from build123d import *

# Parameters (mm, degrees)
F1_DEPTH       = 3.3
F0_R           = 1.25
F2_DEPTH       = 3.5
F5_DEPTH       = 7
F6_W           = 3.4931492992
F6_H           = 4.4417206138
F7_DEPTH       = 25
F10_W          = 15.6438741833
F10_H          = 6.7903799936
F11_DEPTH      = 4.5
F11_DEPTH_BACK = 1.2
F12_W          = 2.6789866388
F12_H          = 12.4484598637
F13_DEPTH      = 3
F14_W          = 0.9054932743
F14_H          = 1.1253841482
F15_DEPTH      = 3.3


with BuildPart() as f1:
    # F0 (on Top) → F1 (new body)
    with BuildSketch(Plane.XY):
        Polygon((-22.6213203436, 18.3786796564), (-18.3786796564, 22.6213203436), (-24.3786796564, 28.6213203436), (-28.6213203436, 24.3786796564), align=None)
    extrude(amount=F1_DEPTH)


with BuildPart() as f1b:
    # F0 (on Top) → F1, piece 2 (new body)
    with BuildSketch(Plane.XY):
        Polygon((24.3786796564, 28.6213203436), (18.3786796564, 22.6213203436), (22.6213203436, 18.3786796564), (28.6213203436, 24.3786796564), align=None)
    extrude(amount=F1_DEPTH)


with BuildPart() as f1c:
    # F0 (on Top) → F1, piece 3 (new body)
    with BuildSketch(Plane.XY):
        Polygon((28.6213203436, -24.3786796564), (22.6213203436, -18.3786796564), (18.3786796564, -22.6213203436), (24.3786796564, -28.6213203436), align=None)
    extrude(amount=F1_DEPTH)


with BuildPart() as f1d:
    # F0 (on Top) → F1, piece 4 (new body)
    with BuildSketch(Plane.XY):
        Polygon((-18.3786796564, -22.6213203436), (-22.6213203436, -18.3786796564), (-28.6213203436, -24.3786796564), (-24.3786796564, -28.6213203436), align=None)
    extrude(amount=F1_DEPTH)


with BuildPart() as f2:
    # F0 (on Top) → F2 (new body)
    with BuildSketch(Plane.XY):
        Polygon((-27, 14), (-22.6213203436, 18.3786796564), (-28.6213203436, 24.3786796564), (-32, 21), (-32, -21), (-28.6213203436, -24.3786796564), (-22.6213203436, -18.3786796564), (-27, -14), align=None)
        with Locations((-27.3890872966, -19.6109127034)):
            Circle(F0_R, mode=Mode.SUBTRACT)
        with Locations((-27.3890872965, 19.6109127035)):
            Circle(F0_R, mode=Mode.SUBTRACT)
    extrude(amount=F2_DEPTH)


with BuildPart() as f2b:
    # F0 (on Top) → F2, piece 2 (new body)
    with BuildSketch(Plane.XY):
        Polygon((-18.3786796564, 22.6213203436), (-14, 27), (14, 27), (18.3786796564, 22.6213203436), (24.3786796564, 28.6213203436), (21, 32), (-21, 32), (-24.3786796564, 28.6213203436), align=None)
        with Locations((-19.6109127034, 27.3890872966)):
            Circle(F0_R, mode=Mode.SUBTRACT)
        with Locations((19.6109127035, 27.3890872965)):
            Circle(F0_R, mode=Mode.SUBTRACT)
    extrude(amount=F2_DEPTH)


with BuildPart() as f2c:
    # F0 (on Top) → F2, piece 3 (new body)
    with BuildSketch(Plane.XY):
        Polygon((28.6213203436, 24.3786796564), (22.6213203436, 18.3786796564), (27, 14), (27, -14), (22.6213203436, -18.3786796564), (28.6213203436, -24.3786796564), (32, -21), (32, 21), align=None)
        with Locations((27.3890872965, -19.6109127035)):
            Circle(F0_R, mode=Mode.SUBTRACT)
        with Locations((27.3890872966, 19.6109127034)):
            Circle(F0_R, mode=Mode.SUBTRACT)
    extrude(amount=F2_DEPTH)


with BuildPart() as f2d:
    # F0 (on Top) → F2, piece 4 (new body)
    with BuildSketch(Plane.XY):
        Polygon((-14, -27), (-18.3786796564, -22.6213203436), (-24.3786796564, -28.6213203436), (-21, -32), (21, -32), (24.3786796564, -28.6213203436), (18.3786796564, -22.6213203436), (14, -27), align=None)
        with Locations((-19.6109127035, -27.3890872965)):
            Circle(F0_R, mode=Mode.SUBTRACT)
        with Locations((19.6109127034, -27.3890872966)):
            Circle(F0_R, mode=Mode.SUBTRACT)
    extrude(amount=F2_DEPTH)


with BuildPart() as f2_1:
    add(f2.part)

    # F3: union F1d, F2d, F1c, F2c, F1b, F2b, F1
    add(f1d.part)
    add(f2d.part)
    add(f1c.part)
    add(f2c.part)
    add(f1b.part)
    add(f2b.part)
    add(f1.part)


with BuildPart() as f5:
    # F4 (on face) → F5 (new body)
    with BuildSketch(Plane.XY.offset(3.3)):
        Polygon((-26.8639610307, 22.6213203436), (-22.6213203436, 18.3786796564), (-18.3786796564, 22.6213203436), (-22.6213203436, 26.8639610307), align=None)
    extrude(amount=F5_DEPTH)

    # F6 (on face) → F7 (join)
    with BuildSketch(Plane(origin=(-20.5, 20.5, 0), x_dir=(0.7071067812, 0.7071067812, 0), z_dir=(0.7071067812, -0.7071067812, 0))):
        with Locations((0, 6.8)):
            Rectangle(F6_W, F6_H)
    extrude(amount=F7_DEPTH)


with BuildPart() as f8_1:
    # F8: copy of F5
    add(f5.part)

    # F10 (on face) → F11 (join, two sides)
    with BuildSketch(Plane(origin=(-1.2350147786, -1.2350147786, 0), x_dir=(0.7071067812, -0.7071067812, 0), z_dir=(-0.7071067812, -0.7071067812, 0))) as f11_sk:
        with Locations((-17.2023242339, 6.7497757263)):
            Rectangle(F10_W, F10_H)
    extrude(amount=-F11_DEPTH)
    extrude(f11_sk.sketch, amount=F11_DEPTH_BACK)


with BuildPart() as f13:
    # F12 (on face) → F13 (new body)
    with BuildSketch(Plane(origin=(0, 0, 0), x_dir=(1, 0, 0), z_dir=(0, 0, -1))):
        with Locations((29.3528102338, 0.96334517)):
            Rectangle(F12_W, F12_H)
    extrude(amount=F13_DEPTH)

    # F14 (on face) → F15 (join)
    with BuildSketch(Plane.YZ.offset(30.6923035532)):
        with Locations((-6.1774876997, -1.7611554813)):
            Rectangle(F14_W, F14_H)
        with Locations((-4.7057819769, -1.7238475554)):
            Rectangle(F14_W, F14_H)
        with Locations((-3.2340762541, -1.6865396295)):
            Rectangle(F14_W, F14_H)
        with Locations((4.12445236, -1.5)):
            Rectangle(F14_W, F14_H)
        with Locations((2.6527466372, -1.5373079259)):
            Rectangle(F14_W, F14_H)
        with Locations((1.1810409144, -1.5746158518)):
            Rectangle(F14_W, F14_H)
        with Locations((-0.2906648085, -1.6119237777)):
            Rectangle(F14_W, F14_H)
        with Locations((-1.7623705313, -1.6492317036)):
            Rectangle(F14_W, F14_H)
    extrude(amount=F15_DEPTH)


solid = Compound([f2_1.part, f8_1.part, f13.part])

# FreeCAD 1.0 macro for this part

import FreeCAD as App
import Part
import Sketcher

V = App.Vector
Q = App.Units.Quantity

doc = App.newDocument("Part")
body = doc.addObject("PartDesign::Body", "Body")

# Sketch on XY plane
sketch1 = doc.addObject("Sketcher::SketchObject", "Sketch")
body.addObject(sketch1)
sketch1.AttachmentSupport = (doc.XY_Plane, [""])
sketch1.MapMode = "FlatFace"
sketch1.addGeometry(Part.LineSegment(V(-23, 18, 0), V(-18, 23, 0)), False)
sketch1.addGeometry(Part.LineSegment(V(-18, 23, 0), V(-24, 29, 0)), False)
sketch1.addGeometry(Part.LineSegment(V(-24, 29, 0), V(-29, 24, 0)), False)
sketch1.addGeometry(Part.LineSegment(V(-29, 24, 0), V(-23, 18, 0)), False)
sketch1.addConstraint(Sketcher.Constraint("Coincident", 0, 2, 1, 1))
sketch1.addConstraint(Sketcher.Constraint("Coincident", 1, 2, 2, 1))
sketch1.addConstraint(Sketcher.Constraint("Coincident", 2, 2, 3, 1))
sketch1.addConstraint(Sketcher.Constraint("Coincident", 3, 2, 0, 1))
sketch1.addConstraint(Sketcher.Constraint("Perpendicular", 0, 1))
sketch1.addConstraint(Sketcher.Constraint("Perpendicular", 1, 2))
sketch1.addConstraint(Sketcher.Constraint("Perpendicular", 2, 3))
sketch1.addConstraint(Sketcher.Constraint("Angle", 0, Q("45 deg")))
sketch1.addConstraint(Sketcher.Constraint("Distance", 0, 6.0))
sketch1.addConstraint(Sketcher.Constraint("DistanceX", 1, 2, 0, 2, 6.0))
sketch1.addConstraint(Sketcher.Constraint("DistanceX", 0, 2, -1, 1, 18.37868))
sketch1.addConstraint(Sketcher.Constraint("DistanceY", -1, 1, 0, 2, 22.62132))
pad1 = doc.addObject("PartDesign::Pad", "Pad")
body.addObject(pad1)
pad1.Profile = sketch1
pad1.Length = 3.3
body2 = doc.addObject("PartDesign::Body", "Body001")

# Sketch on XY plane
sketch2 = doc.addObject("Sketcher::SketchObject", "Sketch001")
body2.addObject(sketch2)
sketch2.AttachmentSupport = (doc.getObject("XY_Plane001"), [""])
sketch2.MapMode = "FlatFace"
sketch2.addGeometry(Part.LineSegment(V(24, 29, 0), V(18, 23, 0)), False)
sketch2.addGeometry(Part.LineSegment(V(18, 23, 0), V(23, 18, 0)), False)
sketch2.addGeometry(Part.LineSegment(V(23, 18, 0), V(29, 24, 0)), False)
sketch2.addGeometry(Part.LineSegment(V(29, 24, 0), V(24, 29, 0)), False)
sketch2.addConstraint(Sketcher.Constraint("Coincident", 0, 2, 1, 1))
sketch2.addConstraint(Sketcher.Constraint("Coincident", 1, 2, 2, 1))
sketch2.addConstraint(Sketcher.Constraint("Coincident", 2, 2, 3, 1))
sketch2.addConstraint(Sketcher.Constraint("Coincident", 3, 2, 0, 1))
sketch2.addConstraint(Sketcher.Constraint("Perpendicular", 0, 1))
sketch2.addConstraint(Sketcher.Constraint("Perpendicular", 1, 2))
sketch2.addConstraint(Sketcher.Constraint("Perpendicular", 2, 3))
sketch2.addConstraint(Sketcher.Constraint("Angle", 0, Q("-135 deg")))
sketch2.addConstraint(Sketcher.Constraint("Distance", 1, 6.0))
sketch2.addConstraint(Sketcher.Constraint("DistanceX", 1, 2, 2, 2, 6.0))
sketch2.addConstraint(Sketcher.Constraint("DistanceX", -1, 1, 0, 2, 18.37868))
sketch2.addConstraint(Sketcher.Constraint("DistanceY", -1, 1, 0, 2, 22.62132))
pad2 = doc.addObject("PartDesign::Pad", "Pad001")
body2.addObject(pad2)
pad2.Profile = sketch2
pad2.Length = 3.3
body3 = doc.addObject("PartDesign::Body", "Body002")

# Sketch on XY plane
sketch3 = doc.addObject("Sketcher::SketchObject", "Sketch002")
body3.addObject(sketch3)
sketch3.AttachmentSupport = (doc.getObject("XY_Plane002"), [""])
sketch3.MapMode = "FlatFace"
sketch3.addGeometry(Part.LineSegment(V(29, -24, 0), V(23, -18, 0)), False)
sketch3.addGeometry(Part.LineSegment(V(23, -18, 0), V(18, -23, 0)), False)
sketch3.addGeometry(Part.LineSegment(V(18, -23, 0), V(24, -29, 0)), False)
sketch3.addGeometry(Part.LineSegment(V(24, -29, 0), V(29, -24, 0)), False)
sketch3.addConstraint(Sketcher.Constraint("Coincident", 0, 2, 1, 1))
sketch3.addConstraint(Sketcher.Constraint("Coincident", 1, 2, 2, 1))
sketch3.addConstraint(Sketcher.Constraint("Coincident", 2, 2, 3, 1))
sketch3.addConstraint(Sketcher.Constraint("Coincident", 3, 2, 0, 1))
sketch3.addConstraint(Sketcher.Constraint("Perpendicular", 0, 1))
sketch3.addConstraint(Sketcher.Constraint("Perpendicular", 1, 2))
sketch3.addConstraint(Sketcher.Constraint("Perpendicular", 2, 3))
sketch3.addConstraint(Sketcher.Constraint("Angle", 0, Q("135 deg")))
sketch3.addConstraint(Sketcher.Constraint("Distance", 1, 6.0))
sketch3.addConstraint(Sketcher.Constraint("DistanceX", 1, 2, 2, 2, 6.0))
sketch3.addConstraint(Sketcher.Constraint("DistanceX", -1, 1, 0, 2, 22.62132))
sketch3.addConstraint(Sketcher.Constraint("DistanceY", 0, 2, -1, 1, 18.37868))
pad3 = doc.addObject("PartDesign::Pad", "Pad002")
body3.addObject(pad3)
pad3.Profile = sketch3
pad3.Length = 3.3
body4 = doc.addObject("PartDesign::Body", "Body003")

# Sketch on XY plane
sketch4 = doc.addObject("Sketcher::SketchObject", "Sketch003")
body4.addObject(sketch4)
sketch4.AttachmentSupport = (doc.getObject("XY_Plane003"), [""])
sketch4.MapMode = "FlatFace"
sketch4.addGeometry(Part.LineSegment(V(-18, -23, 0), V(-23, -18, 0)), False)
sketch4.addGeometry(Part.LineSegment(V(-23, -18, 0), V(-29, -24, 0)), False)
sketch4.addGeometry(Part.LineSegment(V(-29, -24, 0), V(-24, -29, 0)), False)
sketch4.addGeometry(Part.LineSegment(V(-24, -29, 0), V(-18, -23, 0)), False)
sketch4.addConstraint(Sketcher.Constraint("Coincident", 0, 2, 1, 1))
sketch4.addConstraint(Sketcher.Constraint("Coincident", 1, 2, 2, 1))
sketch4.addConstraint(Sketcher.Constraint("Coincident", 2, 2, 3, 1))
sketch4.addConstraint(Sketcher.Constraint("Coincident", 3, 2, 0, 1))
sketch4.addConstraint(Sketcher.Constraint("Perpendicular", 0, 1))
sketch4.addConstraint(Sketcher.Constraint("Perpendicular", 1, 2))
sketch4.addConstraint(Sketcher.Constraint("Perpendicular", 2, 3))
sketch4.addConstraint(Sketcher.Constraint("Angle", 0, Q("135 deg")))
sketch4.addConstraint(Sketcher.Constraint("Distance", 0, 6.0))
sketch4.addConstraint(Sketcher.Constraint("DistanceX", 1, 2, 0, 2, 6.0))
sketch4.addConstraint(Sketcher.Constraint("DistanceX", 0, 2, -1, 1, 22.62132))
sketch4.addConstraint(Sketcher.Constraint("DistanceY", 0, 2, -1, 1, 18.37868))
pad4 = doc.addObject("PartDesign::Pad", "Pad003")
body4.addObject(pad4)
pad4.Profile = sketch4
pad4.Length = 3.3
body5 = doc.addObject("PartDesign::Body", "Body004")

# Sketch on XY plane
sketch5 = doc.addObject("Sketcher::SketchObject", "Sketch004")
body5.addObject(sketch5)
sketch5.AttachmentSupport = (doc.getObject("XY_Plane004"), [""])
sketch5.MapMode = "FlatFace"
sketch5.addGeometry(Part.LineSegment(V(-27, 14, 0), V(-22.6, 18.4, 0)), False)
sketch5.addGeometry(Part.LineSegment(V(-22.6, 18.4, 0), V(-28.6, 24.4, 0)), False)
sketch5.addGeometry(Part.LineSegment(V(-28.6, 24.4, 0), V(-32, 21, 0)), False)
sketch5.addGeometry(Part.LineSegment(V(-32, 21, 0), V(-32, -21, 0)), False)
sketch5.addGeometry(Part.LineSegment(V(-32, -21, 0), V(-28.6, -24.4, 0)), False)
sketch5.addGeometry(Part.LineSegment(V(-28.6, -24.4, 0), V(-22.6, -18.4, 0)), False)
sketch5.addGeometry(Part.LineSegment(V(-22.6, -18.4, 0), V(-27, -14, 0)), False)
sketch5.addGeometry(Part.LineSegment(V(-27, -14, 0), V(-27, 14, 0)), False)
sketch5.addGeometry(Part.Circle(V(-27.4, -19.6, 0), V(0, 0, 1), 1.2), False)
sketch5.addGeometry(Part.Circle(V(-27.4, 19.6, 0), V(0, 0, 1), 1.2), False)
sketch5.addConstraint(Sketcher.Constraint("Coincident", 0, 2, 1, 1))
sketch5.addConstraint(Sketcher.Constraint("Coincident", 1, 2, 2, 1))
sketch5.addConstraint(Sketcher.Constraint("Coincident", 2, 2, 3, 1))
sketch5.addConstraint(Sketcher.Constraint("Coincident", 3, 2, 4, 1))
sketch5.addConstraint(Sketcher.Constraint("Coincident", 4, 2, 5, 1))
sketch5.addConstraint(Sketcher.Constraint("Coincident", 5, 2, 6, 1))
sketch5.addConstraint(Sketcher.Constraint("Coincident", 6, 2, 7, 1))
sketch5.addConstraint(Sketcher.Constraint("Coincident", 7, 2, 0, 1))
sketch5.addConstraint(Sketcher.Constraint("Vertical", 3))
sketch5.addConstraint(Sketcher.Constraint("Vertical", 7))
sketch5.addConstraint(Sketcher.Constraint("Equal", 8, 9))
sketch5.addConstraint(Sketcher.Constraint("Symmetric", 8, 3, 9, 3, -1))
sketch5.addConstraint(Sketcher.Constraint("Symmetric", 1, 2, 4, 2, -1))
sketch5.addConstraint(Sketcher.Constraint("Symmetric", 0, 2, 5, 2, -1))
sketch5.addConstraint(Sketcher.Constraint("Perpendicular", 0, 1))
sketch5.addConstraint(Sketcher.Constraint("Perpendicular", 1, 2))
sketch5.addConstraint(Sketcher.Constraint("Perpendicular", 2, 4))
sketch5.addConstraint(Sketcher.Constraint("Perpendicular", 4, 5))
sketch5.addConstraint(Sketcher.Constraint("Perpendicular", 5, 6))
sketch5.addConstraint(Sketcher.Constraint("Diameter", 8, 2.5))
sketch5.addConstraint(Sketcher.Constraint("DistanceY", 3, 2, 3, 1, 42.0))
sketch5.addConstraint(Sketcher.Constraint("DistanceY", 7, 1, 7, 2, 28.0))
sketch5.addConstraint(Sketcher.Constraint("DistanceX", 2, 2, -1, 1, 32.0))
sketch5.addConstraint(Sketcher.Constraint("DistanceX", 6, 2, -1, 1, 27.0))
sketch5.addConstraint(Sketcher.Constraint("Distance", 0, 6.192388))
sketch5.addConstraint(Sketcher.Constraint("DistanceX", 8, 3, -1, 1, 27.389087))
sketch5.addConstraint(Sketcher.Constraint("DistanceY", 8, 3, -1, 1, 19.610913))
pad5 = doc.addObject("PartDesign::Pad", "Pad004")
body5.addObject(pad5)
pad5.Profile = sketch5
pad5.Length = 3.5
body6 = doc.addObject("PartDesign::Body", "Body005")

# Sketch on XY plane
sketch6 = doc.addObject("Sketcher::SketchObject", "Sketch005")
body6.addObject(sketch6)
sketch6.AttachmentSupport = (doc.getObject("XY_Plane005"), [""])
sketch6.MapMode = "FlatFace"
sketch6.addGeometry(Part.LineSegment(V(-18.4, 22.6, 0), V(-14, 27, 0)), False)
sketch6.addGeometry(Part.LineSegment(V(-14, 27, 0), V(14, 27, 0)), False)
sketch6.addGeometry(Part.LineSegment(V(14, 27, 0), V(18.4, 22.6, 0)), False)
sketch6.addGeometry(Part.LineSegment(V(18.4, 22.6, 0), V(24.4, 28.6, 0)), False)
sketch6.addGeometry(Part.LineSegment(V(24.4, 28.6, 0), V(21, 32, 0)), False)
sketch6.addGeometry(Part.LineSegment(V(21, 32, 0), V(-21, 32, 0)), False)
sketch6.addGeometry(Part.LineSegment(V(-21, 32, 0), V(-24.4, 28.6, 0)), False)
sketch6.addGeometry(Part.LineSegment(V(-24.4, 28.6, 0), V(-18.4, 22.6, 0)), False)
sketch6.addGeometry(Part.Circle(V(19.6, 27.4, 0), V(0, 0, 1), 1.2), False)
sketch6.addGeometry(Part.Circle(V(-19.6, 27.4, 0), V(0, 0, 1), 1.2), False)
sketch6.addConstraint(Sketcher.Constraint("Coincident", 0, 2, 1, 1))
sketch6.addConstraint(Sketcher.Constraint("Coincident", 1, 2, 2, 1))
sketch6.addConstraint(Sketcher.Constraint("Coincident", 2, 2, 3, 1))
sketch6.addConstraint(Sketcher.Constraint("Coincident", 3, 2, 4, 1))
sketch6.addConstraint(Sketcher.Constraint("Coincident", 4, 2, 5, 1))
sketch6.addConstraint(Sketcher.Constraint("Coincident", 5, 2, 6, 1))
sketch6.addConstraint(Sketcher.Constraint("Coincident", 6, 2, 7, 1))
sketch6.addConstraint(Sketcher.Constraint("Coincident", 7, 2, 0, 1))
sketch6.addConstraint(Sketcher.Constraint("Horizontal", 1))
sketch6.addConstraint(Sketcher.Constraint("Horizontal", 5))
sketch6.addConstraint(Sketcher.Constraint("Equal", 8, 9))
sketch6.addConstraint(Sketcher.Constraint("Symmetric", 8, 3, 9, 3, -2))
sketch6.addConstraint(Sketcher.Constraint("Symmetric", 3, 2, 6, 2, -2))
sketch6.addConstraint(Sketcher.Constraint("Symmetric", 2, 2, 7, 2, -2))
sketch6.addConstraint(Sketcher.Constraint("Perpendicular", 0, 2))
sketch6.addConstraint(Sketcher.Constraint("Perpendicular", 2, 3))
sketch6.addConstraint(Sketcher.Constraint("Perpendicular", 3, 4))
sketch6.addConstraint(Sketcher.Constraint("Perpendicular", 4, 6))
sketch6.addConstraint(Sketcher.Constraint("Perpendicular", 6, 7))
sketch6.addConstraint(Sketcher.Constraint("Diameter", 8, 2.5))
sketch6.addConstraint(Sketcher.Constraint("DistanceX", 1, 1, 1, 2, 28.0))
sketch6.addConstraint(Sketcher.Constraint("DistanceX", 5, 2, 5, 1, 42.0))
sketch6.addConstraint(Sketcher.Constraint("DistanceY", -1, 1, 0, 2, 27.0))
sketch6.addConstraint(Sketcher.Constraint("DistanceY", -1, 1, 4, 2, 32.0))
sketch6.addConstraint(Sketcher.Constraint("Distance", 0, 6.192388))
sketch6.addConstraint(Sketcher.Constraint("DistanceX", -1, 1, 8, 3, 19.610913))
sketch6.addConstraint(Sketcher.Constraint("DistanceY", -1, 1, 8, 3, 27.389087))
pad6 = doc.addObject("PartDesign::Pad", "Pad005")
body6.addObject(pad6)
pad6.Profile = sketch6
pad6.Length = 3.5
body7 = doc.addObject("PartDesign::Body", "Body006")

# Sketch on XY plane
sketch7 = doc.addObject("Sketcher::SketchObject", "Sketch006")
body7.addObject(sketch7)
sketch7.AttachmentSupport = (doc.getObject("XY_Plane006"), [""])
sketch7.MapMode = "FlatFace"
sketch7.addGeometry(Part.LineSegment(V(28.6, 24.4, 0), V(22.6, 18.4, 0)), False)
sketch7.addGeometry(Part.LineSegment(V(22.6, 18.4, 0), V(27, 14, 0)), False)
sketch7.addGeometry(Part.LineSegment(V(27, 14, 0), V(27, -14, 0)), False)
sketch7.addGeometry(Part.LineSegment(V(27, -14, 0), V(22.6, -18.4, 0)), False)
sketch7.addGeometry(Part.LineSegment(V(22.6, -18.4, 0), V(28.6, -24.4, 0)), False)
sketch7.addGeometry(Part.LineSegment(V(28.6, -24.4, 0), V(32, -21, 0)), False)
sketch7.addGeometry(Part.LineSegment(V(32, -21, 0), V(32, 21, 0)), False)
sketch7.addGeometry(Part.LineSegment(V(32, 21, 0), V(28.6, 24.4, 0)), False)
sketch7.addGeometry(Part.Circle(V(27.4, -19.6, 0), V(0, 0, 1), 1.2), False)
sketch7.addGeometry(Part.Circle(V(27.4, 19.6, 0), V(0, 0, 1), 1.2), False)
sketch7.addConstraint(Sketcher.Constraint("Coincident", 0, 2, 1, 1))
sketch7.addConstraint(Sketcher.Constraint("Coincident", 1, 2, 2, 1))
sketch7.addConstraint(Sketcher.Constraint("Coincident", 2, 2, 3, 1))
sketch7.addConstraint(Sketcher.Constraint("Coincident", 3, 2, 4, 1))
sketch7.addConstraint(Sketcher.Constraint("Coincident", 4, 2, 5, 1))
sketch7.addConstraint(Sketcher.Constraint("Coincident", 5, 2, 6, 1))
sketch7.addConstraint(Sketcher.Constraint("Coincident", 6, 2, 7, 1))
sketch7.addConstraint(Sketcher.Constraint("Coincident", 7, 2, 0, 1))
sketch7.addConstraint(Sketcher.Constraint("Vertical", 2))
sketch7.addConstraint(Sketcher.Constraint("Vertical", 6))
sketch7.addConstraint(Sketcher.Constraint("Equal", 8, 9))
sketch7.addConstraint(Sketcher.Constraint("Symmetric", 8, 3, 9, 3, -1))
sketch7.addConstraint(Sketcher.Constraint("Symmetric", 0, 2, 3, 2, -1))
sketch7.addConstraint(Sketcher.Constraint("Symmetric", 4, 2, 7, 2, -1))
sketch7.addConstraint(Sketcher.Constraint("Perpendicular", 0, 1))
sketch7.addConstraint(Sketcher.Constraint("Perpendicular", 1, 3))
sketch7.addConstraint(Sketcher.Constraint("Perpendicular", 3, 4))
sketch7.addConstraint(Sketcher.Constraint("Perpendicular", 4, 5))
sketch7.addConstraint(Sketcher.Constraint("Perpendicular", 5, 7))
sketch7.addConstraint(Sketcher.Constraint("Diameter", 8, 2.5))
sketch7.addConstraint(Sketcher.Constraint("DistanceY", 2, 2, 2, 1, 28.0))
sketch7.addConstraint(Sketcher.Constraint("DistanceY", 6, 1, 6, 2, 42.0))
sketch7.addConstraint(Sketcher.Constraint("DistanceX", -1, 1, 1, 2, 27.0))
sketch7.addConstraint(Sketcher.Constraint("DistanceX", -1, 1, 5, 2, 32.0))
sketch7.addConstraint(Sketcher.Constraint("Distance", 1, 6.192388))
sketch7.addConstraint(Sketcher.Constraint("DistanceX", -1, 1, 8, 3, 27.389087))
sketch7.addConstraint(Sketcher.Constraint("DistanceY", 8, 3, -1, 1, 19.610913))
pad7 = doc.addObject("PartDesign::Pad", "Pad006")
body7.addObject(pad7)
pad7.Profile = sketch7
pad7.Length = 3.5
body8 = doc.addObject("PartDesign::Body", "Body007")

# Sketch on XY plane
sketch8 = doc.addObject("Sketcher::SketchObject", "Sketch007")
body8.addObject(sketch8)
sketch8.AttachmentSupport = (doc.getObject("XY_Plane007"), [""])
sketch8.MapMode = "FlatFace"
sketch8.addGeometry(Part.LineSegment(V(-14, -27, 0), V(-18.4, -22.6, 0)), False)
sketch8.addGeometry(Part.LineSegment(V(-18.4, -22.6, 0), V(-24.4, -28.6, 0)), False)
sketch8.addGeometry(Part.LineSegment(V(-24.4, -28.6, 0), V(-21, -32, 0)), False)
sketch8.addGeometry(Part.LineSegment(V(-21, -32, 0), V(21, -32, 0)), False)
sketch8.addGeometry(Part.LineSegment(V(21, -32, 0), V(24.4, -28.6, 0)), False)
sketch8.addGeometry(Part.LineSegment(V(24.4, -28.6, 0), V(18.4, -22.6, 0)), False)
sketch8.addGeometry(Part.LineSegment(V(18.4, -22.6, 0), V(14, -27, 0)), False)
sketch8.addGeometry(Part.LineSegment(V(14, -27, 0), V(-14, -27, 0)), False)
sketch8.addGeometry(Part.Circle(V(19.6, -27.4, 0), V(0, 0, 1), 1.2), False)
sketch8.addGeometry(Part.Circle(V(-19.6, -27.4, 0), V(0, 0, 1), 1.2), False)
sketch8.addConstraint(Sketcher.Constraint("Coincident", 0, 2, 1, 1))
sketch8.addConstraint(Sketcher.Constraint("Coincident", 1, 2, 2, 1))
sketch8.addConstraint(Sketcher.Constraint("Coincident", 2, 2, 3, 1))
sketch8.addConstraint(Sketcher.Constraint("Coincident", 3, 2, 4, 1))
sketch8.addConstraint(Sketcher.Constraint("Coincident", 4, 2, 5, 1))
sketch8.addConstraint(Sketcher.Constraint("Coincident", 5, 2, 6, 1))
sketch8.addConstraint(Sketcher.Constraint("Coincident", 6, 2, 7, 1))
sketch8.addConstraint(Sketcher.Constraint("Coincident", 7, 2, 0, 1))
sketch8.addConstraint(Sketcher.Constraint("Horizontal", 3))
sketch8.addConstraint(Sketcher.Constraint("Horizontal", 7))
sketch8.addConstraint(Sketcher.Constraint("Equal", 8, 9))
sketch8.addConstraint(Sketcher.Constraint("Symmetric", 8, 3, 9, 3, -2))
sketch8.addConstraint(Sketcher.Constraint("Symmetric", 1, 2, 4, 2, -2))
sketch8.addConstraint(Sketcher.Constraint("Symmetric", 0, 2, 5, 2, -2))
sketch8.addConstraint(Sketcher.Constraint("Perpendicular", 0, 1))
sketch8.addConstraint(Sketcher.Constraint("Perpendicular", 1, 2))
sketch8.addConstraint(Sketcher.Constraint("Perpendicular", 2, 4))
sketch8.addConstraint(Sketcher.Constraint("Perpendicular", 4, 5))
sketch8.addConstraint(Sketcher.Constraint("Perpendicular", 5, 6))
sketch8.addConstraint(Sketcher.Constraint("Diameter", 8, 2.5))
sketch8.addConstraint(Sketcher.Constraint("DistanceX", 3, 1, 3, 2, 42.0))
sketch8.addConstraint(Sketcher.Constraint("DistanceX", 7, 2, 7, 1, 28.0))
sketch8.addConstraint(Sketcher.Constraint("DistanceY", 2, 2, -1, 1, 32.0))
sketch8.addConstraint(Sketcher.Constraint("DistanceY", 6, 2, -1, 1, 27.0))
sketch8.addConstraint(Sketcher.Constraint("Distance", 0, 6.192388))
sketch8.addConstraint(Sketcher.Constraint("DistanceX", -1, 1, 8, 3, 19.610913))
sketch8.addConstraint(Sketcher.Constraint("DistanceY", 8, 3, -1, 1, 27.389087))
pad8 = doc.addObject("PartDesign::Pad", "Pad007")
body8.addObject(pad8)
pad8.Profile = sketch8
pad8.Length = 3.5
doc.recompute()

boolean = doc.addObject("PartDesign::Boolean", "Boolean")
body5.addObject(boolean)
boolean.Type = "Fuse"
boolean.addObjects([body4])
doc.recompute()

boolean2 = doc.addObject("PartDesign::Boolean", "Boolean001")
body5.addObject(boolean2)
boolean2.Type = "Fuse"
boolean2.addObjects([body8])
doc.recompute()

boolean3 = doc.addObject("PartDesign::Boolean", "Boolean002")
body5.addObject(boolean3)
boolean3.Type = "Fuse"
boolean3.addObjects([body3])
doc.recompute()

boolean4 = doc.addObject("PartDesign::Boolean", "Boolean003")
body5.addObject(boolean4)
boolean4.Type = "Fuse"
boolean4.addObjects([body7])
doc.recompute()

boolean5 = doc.addObject("PartDesign::Boolean", "Boolean004")
body5.addObject(boolean5)
boolean5.Type = "Fuse"
boolean5.addObjects([body2])
doc.recompute()

boolean6 = doc.addObject("PartDesign::Boolean", "Boolean005")
body5.addObject(boolean6)
boolean6.Type = "Fuse"
boolean6.addObjects([body6])
doc.recompute()

boolean7 = doc.addObject("PartDesign::Boolean", "Boolean006")
body5.addObject(boolean7)
boolean7.Type = "Fuse"
boolean7.addObjects([body])
body9 = doc.addObject("PartDesign::Body", "Body008")

# Sketch on XY plane
sketch9 = doc.addObject("Sketcher::SketchObject", "Sketch008")
body9.addObject(sketch9)
sketch9.AttachmentSupport = (doc.getObject("XY_Plane008"), [""])
sketch9.MapMode = "FlatFace"
sketch9.AttachmentOffset = App.Placement(V(0, 0, 3.3), App.Rotation())
sketch9.addGeometry(Part.LineSegment(V(-27, 23, 0), V(-23, 18, 0)), False)
sketch9.addGeometry(Part.LineSegment(V(-23, 18, 0), V(-18, 23, 0)), False)
sketch9.addGeometry(Part.LineSegment(V(-18, 23, 0), V(-23, 27, 0)), False)
sketch9.addGeometry(Part.LineSegment(V(-23, 27, 0), V(-27, 23, 0)), False)
sketch9.addConstraint(Sketcher.Constraint("Coincident", 0, 2, 1, 1))
sketch9.addConstraint(Sketcher.Constraint("Coincident", 1, 2, 2, 1))
sketch9.addConstraint(Sketcher.Constraint("Coincident", 2, 2, 3, 1))
sketch9.addConstraint(Sketcher.Constraint("Coincident", 3, 2, 0, 1))
sketch9.addConstraint(Sketcher.Constraint("Perpendicular", 0, 1))
sketch9.addConstraint(Sketcher.Constraint("Perpendicular", 1, 2))
sketch9.addConstraint(Sketcher.Constraint("Perpendicular", 2, 3))
sketch9.addConstraint(Sketcher.Constraint("Horizontal", 1, 2, 3, 2))
sketch9.addConstraint(Sketcher.Constraint("Vertical", 0, 2, 2, 2))
sketch9.addConstraint(Sketcher.Constraint("Distance", 0, 6.0))
sketch9.addConstraint(Sketcher.Constraint("DistanceX", 0, 2, -1, 1, 22.62132))
sketch9.addConstraint(Sketcher.Constraint("DistanceY", -1, 1, 0, 2, 18.37868))
pad9 = doc.addObject("PartDesign::Pad", "Pad008")
body9.addObject(pad9)
pad9.Profile = sketch9
pad9.Length = 7

# Sketch on an angled plane
sketch10 = doc.addObject("Sketcher::SketchObject", "Sketch009")
body9.addObject(sketch10)
sketch10.Placement = App.Placement(V(-20.5, 20.5, 0), App.Rotation(V(0.707106781, 0.707106781, 0), V(0, 0, 0.999999999), V(0.707106781, -0.707106781, 0), "ZXY"))
sketch10.addGeometry(Part.LineSegment(V(-1.7, 9, 0), V(-1.7, 4.6, 0)), False)
sketch10.addGeometry(Part.LineSegment(V(-1.7, 4.6, 0), V(1.7, 4.6, 0)), False)
sketch10.addGeometry(Part.LineSegment(V(1.7, 4.6, 0), V(1.7, 9, 0)), False)
sketch10.addGeometry(Part.LineSegment(V(1.7, 9, 0), V(-1.7, 9, 0)), False)
sketch10.addConstraint(Sketcher.Constraint("Coincident", 0, 2, 1, 1))
sketch10.addConstraint(Sketcher.Constraint("Coincident", 1, 2, 2, 1))
sketch10.addConstraint(Sketcher.Constraint("Coincident", 2, 2, 3, 1))
sketch10.addConstraint(Sketcher.Constraint("Coincident", 3, 2, 0, 1))
sketch10.addConstraint(Sketcher.Constraint("Vertical", 0))
sketch10.addConstraint(Sketcher.Constraint("Horizontal", 1))
sketch10.addConstraint(Sketcher.Constraint("Vertical", 2))
sketch10.addConstraint(Sketcher.Constraint("Horizontal", 3))
sketch10.addConstraint(Sketcher.Constraint("DistanceX", 1, 1, 1, 2, 3.493149))
sketch10.addConstraint(Sketcher.Constraint("DistanceY", 0, 2, 0, 1, 4.441721))
sketch10.addConstraint(Sketcher.Constraint("DistanceY", -1, 1, 0, 2, 4.57914))
sketch10.addConstraint(Sketcher.Constraint("DistanceX", 0, 2, -1, 1, 1.746575))
pad10 = doc.addObject("PartDesign::Pad", "Pad009")
body9.addObject(pad10)
pad10.Profile = sketch10
pad10.Length = 25

# Sketch on an angled plane
sketch11 = doc.addObject("Sketcher::SketchObject", "Sketch010")
body9.addObject(sketch11)
sketch11.Placement = App.Placement(V(-1.235015, -1.235015, 0), App.Rotation(V(0.707106781, -0.707106781, 0), V(0, 0, 0.999999999), V(-0.707106781, -0.707106781, 0), "ZXY"))
sketch11.addGeometry(Part.LineSegment(V(-25, 10, 0), V(-25, 3, 0)), False)
sketch11.addGeometry(Part.LineSegment(V(-25, 3, 0), V(-9, 3, 0)), False)
sketch11.addGeometry(Part.LineSegment(V(-9, 3, 0), V(-9, 10, 0)), False)
sketch11.addGeometry(Part.LineSegment(V(-9, 10, 0), V(-25, 10, 0)), False)
sketch11.addConstraint(Sketcher.Constraint("Coincident", 0, 2, 1, 1))
sketch11.addConstraint(Sketcher.Constraint("Coincident", 1, 2, 2, 1))
sketch11.addConstraint(Sketcher.Constraint("Coincident", 2, 2, 3, 1))
sketch11.addConstraint(Sketcher.Constraint("Coincident", 3, 2, 0, 1))
sketch11.addConstraint(Sketcher.Constraint("Vertical", 0))
sketch11.addConstraint(Sketcher.Constraint("Horizontal", 1))
sketch11.addConstraint(Sketcher.Constraint("Vertical", 2))
sketch11.addConstraint(Sketcher.Constraint("Horizontal", 3))
sketch11.addConstraint(Sketcher.Constraint("DistanceY", 0, 2, 0, 1, 6.79038))
sketch11.addConstraint(Sketcher.Constraint("DistanceX", 1, 1, 1, 2, 15.643874))
sketch11.addConstraint(Sketcher.Constraint("DistanceX", 0, 2, -1, 1, 25.024261))
sketch11.addConstraint(Sketcher.Constraint("DistanceY", -1, 1, 0, 2, 3.354586))
pad11 = doc.addObject("PartDesign::Pad", "Pad010")
body9.addObject(pad11)
pad11.Profile = sketch11
pad11.Type = "TwoLengths"
pad11.Length = 4.5
pad11.Length2 = 1.2
pad11.Reversed = True
body10 = doc.addObject("PartDesign::Body", "Body009")

# Sketch on XY plane
sketch12 = doc.addObject("Sketcher::SketchObject", "Sketch011")
body10.addObject(sketch12)
sketch12.AttachmentSupport = (doc.getObject("XY_Plane009"), [""])
sketch12.MapMode = "FlatFace"
sketch12.addGeometry(Part.LineSegment(V(28, -7.2, 0), V(28, 5.3, 0)), False)
sketch12.addGeometry(Part.LineSegment(V(28, 5.3, 0), V(30.7, 5.3, 0)), False)
sketch12.addGeometry(Part.LineSegment(V(30.7, 5.3, 0), V(30.7, -7.2, 0)), False)
sketch12.addGeometry(Part.LineSegment(V(30.7, -7.2, 0), V(28, -7.2, 0)), False)
sketch12.addConstraint(Sketcher.Constraint("Coincident", 0, 2, 1, 1))
sketch12.addConstraint(Sketcher.Constraint("Coincident", 1, 2, 2, 1))
sketch12.addConstraint(Sketcher.Constraint("Coincident", 2, 2, 3, 1))
sketch12.addConstraint(Sketcher.Constraint("Coincident", 3, 2, 0, 1))
sketch12.addConstraint(Sketcher.Constraint("Vertical", 0))
sketch12.addConstraint(Sketcher.Constraint("Horizontal", 1))
sketch12.addConstraint(Sketcher.Constraint("Vertical", 2))
sketch12.addConstraint(Sketcher.Constraint("Horizontal", 3))
sketch12.addConstraint(Sketcher.Constraint("DistanceY", 0, 1, 0, 2, 12.44846))
sketch12.addConstraint(Sketcher.Constraint("DistanceX", 1, 1, 1, 2, 2.678987))
sketch12.addConstraint(Sketcher.Constraint("DistanceX", -1, 1, 0, 2, 28.013317))
sketch12.addConstraint(Sketcher.Constraint("DistanceY", -1, 1, 0, 2, 5.260885))
pad12 = doc.addObject("PartDesign::Pad", "Pad011")
body10.addObject(pad12)
pad12.Profile = sketch12
pad12.Length = 3
pad12.Reversed = True

# Sketch on YZ plane
sketch13 = doc.addObject("Sketcher::SketchObject", "Sketch012")
body10.addObject(sketch13)
sketch13.AttachmentSupport = (doc.getObject("YZ_Plane009"), [""])
sketch13.MapMode = "FlatFace"
sketch13.AttachmentOffset = App.Placement(V(0, 0, 30.692304), App.Rotation())
sketch13.addGeometry(Part.LineSegment(V(-6.6, -1.2, 0), V(-6.6, -2.3, 0)), False)
sketch13.addGeometry(Part.LineSegment(V(-6.6, -2.3, 0), V(-5.7, -2.3, 0)), False)
sketch13.addGeometry(Part.LineSegment(V(-5.7, -2.3, 0), V(-5.7, -1.2, 0)), False)
sketch13.addGeometry(Part.LineSegment(V(-5.7, -1.2, 0), V(-6.6, -1.2, 0)), False)
sketch13.addGeometry(Part.LineSegment(V(-5.2, -1.2, 0), V(-5.2, -2.3, 0)), False)
sketch13.addGeometry(Part.LineSegment(V(-5.2, -2.3, 0), V(-4.3, -2.3, 0)), False)
sketch13.addGeometry(Part.LineSegment(V(-4.3, -2.3, 0), V(-4.3, -1.2, 0)), False)
sketch13.addGeometry(Part.LineSegment(V(-4.3, -1.2, 0), V(-5.2, -1.2, 0)), False)
sketch13.addGeometry(Part.LineSegment(V(-3.7, -1.1, 0), V(-3.7, -2.2, 0)), False)
sketch13.addGeometry(Part.LineSegment(V(-3.7, -2.2, 0), V(-2.8, -2.2, 0)), False)
sketch13.addGeometry(Part.LineSegment(V(-2.8, -2.2, 0), V(-2.8, -1.1, 0)), False)
sketch13.addGeometry(Part.LineSegment(V(-2.8, -1.1, 0), V(-3.7, -1.1, 0)), False)
sketch13.addGeometry(Part.LineSegment(V(3.7, -0.9, 0), V(3.7, -2.1, 0)), False)
sketch13.addGeometry(Part.LineSegment(V(3.7, -2.1, 0), V(4.6, -2.1, 0)), False)
sketch13.addGeometry(Part.LineSegment(V(4.6, -2.1, 0), V(4.6, -0.9, 0)), False)
sketch13.addGeometry(Part.LineSegment(V(4.6, -0.9, 0), V(3.7, -0.9, 0)), False)
sketch13.addGeometry(Part.LineSegment(V(2.2, -1, 0), V(2.2, -2.1, 0)), False)
sketch13.addGeometry(Part.LineSegment(V(2.2, -2.1, 0), V(3.1, -2.1, 0)), False)
sketch13.addGeometry(Part.LineSegment(V(3.1, -2.1, 0), V(3.1, -1, 0)), False)
sketch13.addGeometry(Part.LineSegment(V(3.1, -1, 0), V(2.2, -1, 0)), False)
sketch13.addGeometry(Part.LineSegment(V(0.7, -1, 0), V(0.7, -2.1, 0)), False)
sketch13.addGeometry(Part.LineSegment(V(0.7, -2.1, 0), V(1.6, -2.1, 0)), False)
sketch13.addGeometry(Part.LineSegment(V(1.6, -2.1, 0), V(1.6, -1, 0)), False)
sketch13.addGeometry(Part.LineSegment(V(1.6, -1, 0), V(0.7, -1, 0)), False)
sketch13.addGeometry(Part.LineSegment(V(-0.7, -1, 0), V(-0.7, -2.2, 0)), False)
sketch13.addGeometry(Part.LineSegment(V(-0.7, -2.2, 0), V(0.2, -2.2, 0)), False)
sketch13.addGeometry(Part.LineSegment(V(0.2, -2.2, 0), V(0.2, -1, 0)), False)
sketch13.addGeometry(Part.LineSegment(V(0.2, -1, 0), V(-0.7, -1, 0)), False)
sketch13.addGeometry(Part.LineSegment(V(-2.2, -1.1, 0), V(-2.2, -2.2, 0)), False)
sketch13.addGeometry(Part.LineSegment(V(-2.2, -2.2, 0), V(-1.3, -2.2, 0)), False)
sketch13.addGeometry(Part.LineSegment(V(-1.3, -2.2, 0), V(-1.3, -1.1, 0)), False)
sketch13.addGeometry(Part.LineSegment(V(-1.3, -1.1, 0), V(-2.2, -1.1, 0)), False)
sketch13.addConstraint(Sketcher.Constraint("Coincident", 0, 2, 1, 1))
sketch13.addConstraint(Sketcher.Constraint("Coincident", 1, 2, 2, 1))
sketch13.addConstraint(Sketcher.Constraint("Coincident", 2, 2, 3, 1))
sketch13.addConstraint(Sketcher.Constraint("Coincident", 3, 2, 0, 1))
sketch13.addConstraint(Sketcher.Constraint("Coincident", 4, 2, 5, 1))
sketch13.addConstraint(Sketcher.Constraint("Coincident", 5, 2, 6, 1))
sketch13.addConstraint(Sketcher.Constraint("Coincident", 6, 2, 7, 1))
sketch13.addConstraint(Sketcher.Constraint("Coincident", 7, 2, 4, 1))
sketch13.addConstraint(Sketcher.Constraint("Coincident", 8, 2, 9, 1))
sketch13.addConstraint(Sketcher.Constraint("Coincident", 9, 2, 10, 1))
sketch13.addConstraint(Sketcher.Constraint("Coincident", 10, 2, 11, 1))
sketch13.addConstraint(Sketcher.Constraint("Coincident", 11, 2, 8, 1))
sketch13.addConstraint(Sketcher.Constraint("Coincident", 12, 2, 13, 1))
sketch13.addConstraint(Sketcher.Constraint("Coincident", 13, 2, 14, 1))
sketch13.addConstraint(Sketcher.Constraint("Coincident", 14, 2, 15, 1))
sketch13.addConstraint(Sketcher.Constraint("Coincident", 15, 2, 12, 1))
sketch13.addConstraint(Sketcher.Constraint("Coincident", 16, 2, 17, 1))
sketch13.addConstraint(Sketcher.Constraint("Coincident", 17, 2, 18, 1))
sketch13.addConstraint(Sketcher.Constraint("Coincident", 18, 2, 19, 1))
sketch13.addConstraint(Sketcher.Constraint("Coincident", 19, 2, 16, 1))
sketch13.addConstraint(Sketcher.Constraint("Coincident", 20, 2, 21, 1))
sketch13.addConstraint(Sketcher.Constraint("Coincident", 21, 2, 22, 1))
sketch13.addConstraint(Sketcher.Constraint("Coincident", 22, 2, 23, 1))
sketch13.addConstraint(Sketcher.Constraint("Coincident", 23, 2, 20, 1))
sketch13.addConstraint(Sketcher.Constraint("Coincident", 24, 2, 25, 1))
sketch13.addConstraint(Sketcher.Constraint("Coincident", 25, 2, 26, 1))
sketch13.addConstraint(Sketcher.Constraint("Coincident", 26, 2, 27, 1))
sketch13.addConstraint(Sketcher.Constraint("Coincident", 27, 2, 24, 1))
sketch13.addConstraint(Sketcher.Constraint("Coincident", 28, 2, 29, 1))
sketch13.addConstraint(Sketcher.Constraint("Coincident", 29, 2, 30, 1))
sketch13.addConstraint(Sketcher.Constraint("Coincident", 30, 2, 31, 1))
sketch13.addConstraint(Sketcher.Constraint("Coincident", 31, 2, 28, 1))
sketch13.addConstraint(Sketcher.Constraint("Vertical", 0))
sketch13.addConstraint(Sketcher.Constraint("Horizontal", 1))
sketch13.addConstraint(Sketcher.Constraint("Vertical", 2))
sketch13.addConstraint(Sketcher.Constraint("Horizontal", 3))
sketch13.addConstraint(Sketcher.Constraint("Vertical", 4))
sketch13.addConstraint(Sketcher.Constraint("Horizontal", 5))
sketch13.addConstraint(Sketcher.Constraint("Vertical", 6))
sketch13.addConstraint(Sketcher.Constraint("Horizontal", 7))
sketch13.addConstraint(Sketcher.Constraint("Vertical", 8))
sketch13.addConstraint(Sketcher.Constraint("Horizontal", 9))
sketch13.addConstraint(Sketcher.Constraint("Vertical", 10))
sketch13.addConstraint(Sketcher.Constraint("Horizontal", 11))
sketch13.addConstraint(Sketcher.Constraint("Vertical", 12))
sketch13.addConstraint(Sketcher.Constraint("Horizontal", 13))
sketch13.addConstraint(Sketcher.Constraint("Vertical", 14))
sketch13.addConstraint(Sketcher.Constraint("Horizontal", 15))
sketch13.addConstraint(Sketcher.Constraint("Vertical", 16))
sketch13.addConstraint(Sketcher.Constraint("Horizontal", 17))
sketch13.addConstraint(Sketcher.Constraint("Vertical", 18))
sketch13.addConstraint(Sketcher.Constraint("Horizontal", 19))
sketch13.addConstraint(Sketcher.Constraint("Vertical", 20))
sketch13.addConstraint(Sketcher.Constraint("Horizontal", 21))
sketch13.addConstraint(Sketcher.Constraint("Vertical", 22))
sketch13.addConstraint(Sketcher.Constraint("Horizontal", 23))
sketch13.addConstraint(Sketcher.Constraint("Vertical", 24))
sketch13.addConstraint(Sketcher.Constraint("Horizontal", 25))
sketch13.addConstraint(Sketcher.Constraint("Vertical", 26))
sketch13.addConstraint(Sketcher.Constraint("Horizontal", 27))
sketch13.addConstraint(Sketcher.Constraint("Vertical", 28))
sketch13.addConstraint(Sketcher.Constraint("Horizontal", 29))
sketch13.addConstraint(Sketcher.Constraint("Vertical", 30))
sketch13.addConstraint(Sketcher.Constraint("Horizontal", 31))
sketch13.addConstraint(Sketcher.Constraint("Equal", 3, 5))
sketch13.addConstraint(Sketcher.Constraint("Equal", 7, 9))
sketch13.addConstraint(Sketcher.Constraint("Equal", 11, 13))
sketch13.addConstraint(Sketcher.Constraint("Equal", 15, 17))
sketch13.addConstraint(Sketcher.Constraint("Equal", 19, 21))
sketch13.addConstraint(Sketcher.Constraint("Equal", 23, 25))
sketch13.addConstraint(Sketcher.Constraint("Equal", 27, 29))
sketch13.addConstraint(Sketcher.Constraint("Equal", 2, 4))
sketch13.addConstraint(Sketcher.Constraint("Equal", 6, 8))
sketch13.addConstraint(Sketcher.Constraint("Equal", 10, 12))
sketch13.addConstraint(Sketcher.Constraint("Equal", 14, 16))
sketch13.addConstraint(Sketcher.Constraint("Equal", 18, 20))
sketch13.addConstraint(Sketcher.Constraint("Equal", 22, 24))
sketch13.addConstraint(Sketcher.Constraint("Equal", 26, 28))
sketch13.addConstraint(Sketcher.Constraint("DistanceX", -1, 1, 16, 2, 2.2))
sketch13.addConstraint(Sketcher.Constraint("DistanceY", 16, 2, -1, 1, 2.1))
sketch13.addConstraint(Sketcher.Constraint("DistanceX", -1, 1, 13, 2, 4.577199))
sketch13.addConstraint(Sketcher.Constraint("DistanceX", 0, 2, 5, 2, 2.377199))
sketch13.addConstraint(Sketcher.Constraint("DistanceX", 4, 2, 9, 2, 2.377199))
sketch13.addConstraint(Sketcher.Constraint("DistanceX", 20, 2, 17, 2, 2.377199))
sketch13.addConstraint(Sketcher.Constraint("DistanceX", 24, 2, 21, 2, 2.377199))
sketch13.addConstraint(Sketcher.Constraint("DistanceX", 1, 1, 1, 2, 0.905493))
sketch13.addConstraint(Sketcher.Constraint("DistanceY", 0, 2, 0, 1, 1.125384))
sketch13.addConstraint(Sketcher.Constraint("DistanceX", 1, 2, -1, 1, 5.724741))
sketch13.addConstraint(Sketcher.Constraint("DistanceY", 4, 2, -1, 1, 2.28654))
sketch13.addConstraint(Sketcher.Constraint("DistanceY", 8, 2, -1, 1, 2.249232))
sketch13.addConstraint(Sketcher.Constraint("DistanceY", 26, 2, -1, 1, 1.049232))
sketch13.addConstraint(Sketcher.Constraint("DistanceY", 30, 2, -1, 1, 1.08654))
sketch13.addConstraint(Sketcher.Constraint("DistanceY", 9, 2, 12, 2, 0.18654))
sketch13.addConstraint(Sketcher.Constraint("DistanceY", 0, 2, -1, 1, 2.323848))
sketch13.addConstraint(Sketcher.Constraint("DistanceY", 20, 2, -1, 1, 2.137308))
sketch13.addConstraint(Sketcher.Constraint("DistanceX", 28, 2, -1, 1, 2.215117))
pad13 = doc.addObject("PartDesign::Pad", "Pad012")
body10.addObject(pad13)
pad13.Profile = sketch13
pad13.Length = 3.3

doc.recompute()
